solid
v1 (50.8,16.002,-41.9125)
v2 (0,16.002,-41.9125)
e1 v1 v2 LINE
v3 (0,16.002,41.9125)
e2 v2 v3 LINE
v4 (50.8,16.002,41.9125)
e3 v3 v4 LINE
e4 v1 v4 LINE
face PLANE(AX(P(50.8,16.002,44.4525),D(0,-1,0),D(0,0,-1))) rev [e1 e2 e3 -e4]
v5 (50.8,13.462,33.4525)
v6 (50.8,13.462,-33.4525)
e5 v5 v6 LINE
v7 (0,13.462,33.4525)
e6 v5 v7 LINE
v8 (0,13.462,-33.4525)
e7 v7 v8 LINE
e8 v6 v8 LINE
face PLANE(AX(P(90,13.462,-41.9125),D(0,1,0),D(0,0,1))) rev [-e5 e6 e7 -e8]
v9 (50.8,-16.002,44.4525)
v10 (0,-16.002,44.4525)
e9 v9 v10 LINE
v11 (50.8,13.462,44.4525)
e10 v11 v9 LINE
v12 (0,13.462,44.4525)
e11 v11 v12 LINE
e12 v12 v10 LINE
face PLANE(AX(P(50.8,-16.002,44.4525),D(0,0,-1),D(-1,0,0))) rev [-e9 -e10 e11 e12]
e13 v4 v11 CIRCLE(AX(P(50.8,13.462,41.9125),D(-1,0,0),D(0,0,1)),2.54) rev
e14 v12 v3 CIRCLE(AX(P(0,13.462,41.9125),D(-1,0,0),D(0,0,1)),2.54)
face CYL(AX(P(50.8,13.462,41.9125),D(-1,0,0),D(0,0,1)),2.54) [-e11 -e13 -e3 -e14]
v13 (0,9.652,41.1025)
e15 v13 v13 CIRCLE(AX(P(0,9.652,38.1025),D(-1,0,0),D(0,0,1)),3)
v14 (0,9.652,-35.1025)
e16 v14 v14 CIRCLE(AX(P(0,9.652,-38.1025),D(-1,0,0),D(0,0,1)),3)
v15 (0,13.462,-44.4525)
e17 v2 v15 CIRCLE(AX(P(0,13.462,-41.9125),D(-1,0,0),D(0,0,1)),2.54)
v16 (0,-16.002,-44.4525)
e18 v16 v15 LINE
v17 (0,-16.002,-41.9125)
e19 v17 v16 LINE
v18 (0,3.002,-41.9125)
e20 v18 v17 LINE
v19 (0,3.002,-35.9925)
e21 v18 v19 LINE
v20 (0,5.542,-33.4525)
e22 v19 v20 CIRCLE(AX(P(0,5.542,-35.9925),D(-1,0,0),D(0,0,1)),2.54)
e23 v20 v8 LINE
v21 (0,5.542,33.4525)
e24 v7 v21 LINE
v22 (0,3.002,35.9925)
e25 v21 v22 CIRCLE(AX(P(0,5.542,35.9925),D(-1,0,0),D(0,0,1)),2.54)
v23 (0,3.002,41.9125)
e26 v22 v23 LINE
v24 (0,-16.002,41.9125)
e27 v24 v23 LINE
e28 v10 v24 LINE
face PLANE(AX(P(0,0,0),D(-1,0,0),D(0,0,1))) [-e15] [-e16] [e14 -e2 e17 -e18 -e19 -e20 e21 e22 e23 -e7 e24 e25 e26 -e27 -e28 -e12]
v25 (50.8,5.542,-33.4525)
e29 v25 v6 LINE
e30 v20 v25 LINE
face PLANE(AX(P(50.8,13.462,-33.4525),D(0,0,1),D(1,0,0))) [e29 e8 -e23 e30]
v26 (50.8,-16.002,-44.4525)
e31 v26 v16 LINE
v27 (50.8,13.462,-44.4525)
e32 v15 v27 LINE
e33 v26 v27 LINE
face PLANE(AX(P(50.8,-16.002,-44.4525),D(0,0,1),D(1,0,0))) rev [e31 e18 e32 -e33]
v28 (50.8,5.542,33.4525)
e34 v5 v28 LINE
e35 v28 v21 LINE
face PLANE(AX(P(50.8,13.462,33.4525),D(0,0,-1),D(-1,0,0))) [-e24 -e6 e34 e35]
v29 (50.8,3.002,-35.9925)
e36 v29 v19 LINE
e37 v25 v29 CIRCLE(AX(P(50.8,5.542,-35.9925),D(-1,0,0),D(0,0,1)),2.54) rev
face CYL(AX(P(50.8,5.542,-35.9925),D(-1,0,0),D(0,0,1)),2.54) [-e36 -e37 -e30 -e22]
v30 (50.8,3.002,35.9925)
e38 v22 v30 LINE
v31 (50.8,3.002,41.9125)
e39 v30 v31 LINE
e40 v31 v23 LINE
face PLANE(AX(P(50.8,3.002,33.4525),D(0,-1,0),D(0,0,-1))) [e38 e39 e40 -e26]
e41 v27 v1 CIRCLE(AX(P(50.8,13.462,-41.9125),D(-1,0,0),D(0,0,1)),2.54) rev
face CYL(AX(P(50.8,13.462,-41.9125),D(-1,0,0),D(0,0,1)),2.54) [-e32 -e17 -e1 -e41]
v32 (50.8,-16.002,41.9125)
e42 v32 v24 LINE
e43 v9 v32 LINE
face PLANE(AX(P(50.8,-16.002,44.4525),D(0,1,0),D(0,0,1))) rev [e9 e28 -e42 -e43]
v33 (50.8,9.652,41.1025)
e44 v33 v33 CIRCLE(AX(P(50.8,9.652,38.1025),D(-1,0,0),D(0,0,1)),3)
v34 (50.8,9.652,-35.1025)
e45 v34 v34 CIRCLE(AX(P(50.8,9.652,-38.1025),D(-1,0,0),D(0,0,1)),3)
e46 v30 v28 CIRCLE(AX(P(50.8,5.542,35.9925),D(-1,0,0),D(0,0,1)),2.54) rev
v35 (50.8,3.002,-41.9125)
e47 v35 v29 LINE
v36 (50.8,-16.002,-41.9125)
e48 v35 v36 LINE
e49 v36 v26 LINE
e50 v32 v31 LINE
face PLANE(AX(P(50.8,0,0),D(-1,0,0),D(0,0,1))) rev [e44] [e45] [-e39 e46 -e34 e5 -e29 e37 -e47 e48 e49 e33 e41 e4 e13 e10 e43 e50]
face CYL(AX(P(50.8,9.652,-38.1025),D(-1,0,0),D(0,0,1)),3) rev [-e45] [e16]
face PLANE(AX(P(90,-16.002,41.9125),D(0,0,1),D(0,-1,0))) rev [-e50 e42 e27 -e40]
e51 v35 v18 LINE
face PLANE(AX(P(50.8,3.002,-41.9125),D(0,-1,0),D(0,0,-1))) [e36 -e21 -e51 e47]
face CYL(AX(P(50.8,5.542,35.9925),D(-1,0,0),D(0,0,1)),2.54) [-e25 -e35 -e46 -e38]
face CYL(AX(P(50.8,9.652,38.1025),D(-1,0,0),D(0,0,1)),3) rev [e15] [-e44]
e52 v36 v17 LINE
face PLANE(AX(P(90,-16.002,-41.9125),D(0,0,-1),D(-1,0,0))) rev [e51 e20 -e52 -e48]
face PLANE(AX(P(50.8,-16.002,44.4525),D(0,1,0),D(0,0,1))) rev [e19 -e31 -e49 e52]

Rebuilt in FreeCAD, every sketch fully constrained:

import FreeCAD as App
import Part
import Sketcher
Q = App.Units.Quantity


def edges_at(feature, points):
    """Names of the edges that pass closest to the given points."""
    edges = feature.Shape.Edges
    near = lambda p: min(range(len(edges)), key=lambda i: edges[i].distToShape(Part.Vertex(*p))[0])
    return sorted({f"Edge{near(p) + 1}" for p in points})


def add_polygon(sketch, points):
    """Adds a closed chain of lines whose ends are joined by coincident constraints."""
    first, n = sketch.GeometryCount, len(points)
    for a, b in zip(points, points[1:] + points[:1]):
        sketch.addGeometry(Part.LineSegment(App.Vector(*a, 0), App.Vector(*b, 0)), False)
    for i in range(n):
        sketch.addConstraint(Sketcher.Constraint("Coincident", first + i, 2, first + (i + 1) % n, 1))

doc = App.newDocument("Part")
params = doc.addObject("Spreadsheet::Sheet", "Params")
for row, (alias, value) in enumerate([
    ("sketch1_width", "1.26 in"),
    ("pad1_length", "2 in"),
    ("fillet_radius", "0.1 in"),
    ("fillet2_radius", "0.1 in"),
    ("sketch2_width", "1.16 in"),
    ("pocket1_length", "90 mm"),
    ("pad2_length", "2 in"),
    ("pad3_length", "2 in"),
    ("fillet3_radius", "0.1 in"),
], start=1):
    params.set(f"A{row}", alias)
    params.set(f"B{row}", "=" + value)
    params.setAlias(f"B{row}", alias)

body = doc.addObject("PartDesign::Body", "Body")

sketch1 = body.newObject("Sketcher::SketchObject", "Sketch")
sketch1.AttachmentSupport = (doc.getObject("YZ_Plane"), [""])
sketch1.MapMode = "FlatFace"
add_polygon(sketch1, [(16, 44), (-16, 44), (-16, -44), (16, -44)])
sketch1.addConstraint(Sketcher.Constraint("Horizontal", 0))
sketch1.addConstraint(Sketcher.Constraint("Vertical", 1))
sketch1.addConstraint(Sketcher.Constraint("Horizontal", 2))
sketch1.addConstraint(Sketcher.Constraint("Vertical", 3))
sketch1.addConstraint(Sketcher.Constraint("Symmetric", 0, 2, 2, 2, -1, 1))
sketch1.addConstraint(Sketcher.Constraint("DistanceX", 0, 2, 0, 1, Q("1.26 in")))
sketch1.addConstraint(Sketcher.Constraint("DistanceY", 1, 2, 1, 1, Q("88.905 mm")))
sketch1.setExpression("Constraints[9]", "Params.sketch1_width")
pad1 = body.newObject("PartDesign::Pad", "Pad")
pad1.Profile = sketch1
pad1.setExpression("Length", "Params.pad1_length")
doc.recompute()

fillet = body.newObject("PartDesign::Fillet", "Fillet")
fillet.Base = (pad1, edges_at(pad1, [(25.4, 16.002, -44.453)]))
fillet.setExpression("Radius", "Params.fillet_radius")
doc.recompute()

fillet2 = body.newObject("PartDesign::Fillet", "Fillet001")
fillet2.Base = (fillet, edges_at(fillet, [(25.4, 16.002, 44.453)]))
fillet2.setExpression("Radius", "Params.fillet2_radius")

sketch2 = body.newObject("Sketcher::SketchObject", "Sketch001")
sketch2.AttachmentSupport = (doc.getObject("YZ_Plane"), [""])
sketch2.MapMode = "FlatFace"
add_polygon(sketch2, [(13, -42), (-16, -42), (-16, 42), (13, 42)])
sketch2.addConstraint(Sketcher.Constraint("Horizontal", 0))
sketch2.addConstraint(Sketcher.Constraint("Vertical", 1))
sketch2.addConstraint(Sketcher.Constraint("Horizontal", 2))
sketch2.addConstraint(Sketcher.Constraint("Vertical", 3))
sketch2.addConstraint(Sketcher.Constraint("DistanceX", 0, 2, 0, 1, Q("1.16 in")))
sketch2.addConstraint(Sketcher.Constraint("DistanceX", 0, 2, -1, 1, Q("0.63 in")))
sketch2.addConstraint(Sketcher.Constraint("DistanceY", 1, 1, 1, 2, Q("83.825 mm")))
sketch2.addConstraint(Sketcher.Constraint("DistanceY", 0, 2, -1, 1, Q("41.9125 mm")))
sketch2.setExpression("Constraints[8]", "Params.sketch2_width")
pocket1 = body.newObject("PartDesign::Pocket", "Pocket")
pocket1.Profile = sketch2
pocket1.setExpression("Length", "Params.pocket1_length")
pocket1.Reversed = True

sketch3 = body.newObject("Sketcher::SketchObject", "Sketch002")
sketch3.AttachmentSupport = (doc.getObject("YZ_Plane"), [""])
sketch3.MapMode = "FlatFace"
add_polygon(sketch3, [(13.5, 33.5), (3, 33.5), (3, 41.9), (13.5, 41.9)])
sketch3.addGeometry(Part.Circle(App.Vector(9.7, 38.1, 0), App.Vector(0, 0, 1), 3), False)
sketch3.addConstraint(Sketcher.Constraint("Horizontal", 0))
sketch3.addConstraint(Sketcher.Constraint("Vertical", 1))
sketch3.addConstraint(Sketcher.Constraint("Horizontal", 2))
sketch3.addConstraint(Sketcher.Constraint("Vertical", 3))
sketch3.addConstraint(Sketcher.Constraint("Diameter", 4, Q("6 mm")))
sketch3.addConstraint(Sketcher.Constraint("DistanceX", -1, 1, 4, 3, Q("0.38 in")))
sketch3.addConstraint(Sketcher.Constraint("DistanceX", -1, 1, 2, 2, Q("0.53 in")))
sketch3.addConstraint(Sketcher.Constraint("DistanceY", 4, 3, 1, 2, Q("0.15 in")))
sketch3.addConstraint(Sketcher.Constraint("DistanceX", 0, 2, 0, 1, Q("10.46 mm")))
sketch3.addConstraint(Sketcher.Constraint("DistanceY", 1, 1, 1, 2, Q("8.46 mm")))
sketch3.addConstraint(Sketcher.Constraint("DistanceY", -1, 1, 4, 3, Q("38.1025 mm")))
pad2 = body.newObject("PartDesign::Pad", "Pad001")
pad2.Profile = sketch3
pad2.setExpression("Length", "Params.pad2_length")

sketch4 = body.newObject("Sketcher::SketchObject", "Sketch003")
sketch4.AttachmentSupport = (doc.getObject("YZ_Plane"), [""])
sketch4.MapMode = "FlatFace"
add_polygon(sketch4, [(13.5, -41.9), (3, -41.9), (3, -33.5), (13.5, -33.5)])
sketch4.addGeometry(Part.Circle(App.Vector(9.7, -38.1, 0), App.Vector(0, 0, 1), 3), False)
sketch4.addConstraint(Sketcher.Constraint("Horizontal", 0))
sketch4.addConstraint(Sketcher.Constraint("Vertical", 1))
sketch4.addConstraint(Sketcher.Constraint("Horizontal", 2))
sketch4.addConstraint(Sketcher.Constraint("Vertical", 3))
sketch4.addConstraint(Sketcher.Constraint("Diameter", 4, Q("6 mm")))
sketch4.addConstraint(Sketcher.Constraint("DistanceX", -1, 1, 4, 3, Q("0.38 in")))
sketch4.addConstraint(Sketcher.Constraint("DistanceX", -1, 1, 2, 2, Q("0.53 in")))
sketch4.addConstraint(Sketcher.Constraint("DistanceY", 0, 2, 4, 3, Q("0.15 in")))
sketch4.addConstraint(Sketcher.Constraint("DistanceX", 0, 2, 0, 1, Q("10.46 mm")))
sketch4.addConstraint(Sketcher.Constraint("DistanceY", 1, 1, 1, 2, Q("8.46 mm")))
sketch4.addConstraint(Sketcher.Constraint("DistanceY", 4, 3, -1, 1, Q("38.1025 mm")))
pad3 = body.newObject("PartDesign::Pad", "Pad002")
pad3.Profile = sketch4
pad3.setExpression("Length", "Params.pad3_length")
doc.recompute()

fillet3 = body.newObject("PartDesign::Fillet", "Fillet002")
fillet3.Base = (pad3, edges_at(pad3, [(25.4, 3.002, 33.453), (25.4, 3.002, -33.453)]))
fillet3.setExpression("Radius", "Params.fillet3_radius")

doc.recompute()
